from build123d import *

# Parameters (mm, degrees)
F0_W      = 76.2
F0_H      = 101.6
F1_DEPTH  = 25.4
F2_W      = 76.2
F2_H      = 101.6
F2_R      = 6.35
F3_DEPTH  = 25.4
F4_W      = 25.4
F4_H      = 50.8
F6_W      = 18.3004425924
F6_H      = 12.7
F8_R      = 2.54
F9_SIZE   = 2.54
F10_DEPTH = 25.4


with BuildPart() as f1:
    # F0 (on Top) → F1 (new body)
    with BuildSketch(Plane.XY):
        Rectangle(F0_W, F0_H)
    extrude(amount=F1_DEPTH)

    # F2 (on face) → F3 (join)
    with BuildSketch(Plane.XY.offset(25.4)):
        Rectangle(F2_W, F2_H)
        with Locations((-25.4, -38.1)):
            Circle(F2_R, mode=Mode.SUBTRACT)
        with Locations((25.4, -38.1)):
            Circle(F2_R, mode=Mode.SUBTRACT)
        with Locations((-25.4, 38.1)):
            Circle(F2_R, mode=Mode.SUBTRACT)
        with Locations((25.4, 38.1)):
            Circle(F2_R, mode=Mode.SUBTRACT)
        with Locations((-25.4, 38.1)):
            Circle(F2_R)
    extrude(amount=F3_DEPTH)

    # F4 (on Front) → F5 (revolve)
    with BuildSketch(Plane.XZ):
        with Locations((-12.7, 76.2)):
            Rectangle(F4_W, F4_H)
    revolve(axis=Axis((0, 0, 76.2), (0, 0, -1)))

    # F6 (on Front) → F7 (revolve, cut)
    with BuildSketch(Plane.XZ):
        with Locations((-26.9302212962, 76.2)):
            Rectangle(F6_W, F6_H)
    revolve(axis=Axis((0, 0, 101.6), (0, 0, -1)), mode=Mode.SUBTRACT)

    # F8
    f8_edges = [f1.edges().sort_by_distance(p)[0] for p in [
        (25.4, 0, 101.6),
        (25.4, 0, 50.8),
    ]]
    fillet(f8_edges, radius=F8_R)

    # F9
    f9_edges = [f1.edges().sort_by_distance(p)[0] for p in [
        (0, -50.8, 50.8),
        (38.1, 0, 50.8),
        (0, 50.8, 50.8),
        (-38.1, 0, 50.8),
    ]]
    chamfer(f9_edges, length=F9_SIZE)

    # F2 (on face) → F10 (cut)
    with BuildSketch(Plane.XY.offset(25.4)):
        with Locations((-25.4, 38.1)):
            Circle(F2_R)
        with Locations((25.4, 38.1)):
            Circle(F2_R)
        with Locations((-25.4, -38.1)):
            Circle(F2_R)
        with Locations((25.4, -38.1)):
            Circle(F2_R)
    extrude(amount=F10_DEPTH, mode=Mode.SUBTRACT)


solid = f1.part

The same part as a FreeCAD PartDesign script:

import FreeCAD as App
import Part
import Sketcher

V = App.Vector
Q = App.Units.Quantity


def edges_at(feature, points):
    """Names of the edges that pass closest to the given points."""
    edges = feature.Shape.Edges
    near = lambda p: min(range(len(edges)), key=lambda i: edges[i].distToShape(Part.Vertex(*p))[0])
    return sorted({f"Edge{near(p) + 1}" for p in points})

doc = App.newDocument("Part")
body = doc.addObject("PartDesign::Body", "Body")

sketch1 = doc.addObject("Sketcher::SketchObject", "Sketch")
body.addObject(sketch1)
sketch1.AttachmentSupport = (doc.XY_Plane, [""])
sketch1.MapMode = "FlatFace"
sketch1.addGeometry(Part.LineSegment(V(-38, 51, 0), V(-38, -51, 0)), False)
sketch1.addGeometry(Part.LineSegment(V(-38, -51, 0), V(38, -51, 0)), False)
sketch1.addGeometry(Part.LineSegment(V(38, -51, 0), V(38, 51, 0)), False)
sketch1.addGeometry(Part.LineSegment(V(38, 51, 0), V(-38, 51, 0)), False)
sketch1.addConstraint(Sketcher.Constraint("Coincident", 0, 2, 1, 1))
sketch1.addConstraint(Sketcher.Constraint("Coincident", 1, 2, 2, 1))
sketch1.addConstraint(Sketcher.Constraint("Coincident", 2, 2, 3, 1))
sketch1.addConstraint(Sketcher.Constraint("Coincident", 3, 2, 0, 1))
sketch1.addConstraint(Sketcher.Constraint("Vertical", 0))
sketch1.addConstraint(Sketcher.Constraint("Horizontal", 1))
sketch1.addConstraint(Sketcher.Constraint("Vertical", 2))
sketch1.addConstraint(Sketcher.Constraint("Horizontal", 3))
sketch1.addConstraint(Sketcher.Constraint("Symmetric", 0, 2, 2, 2, -1, 1))
sketch1.addConstraint(Sketcher.Constraint("DistanceX", 1, 1, 1, 2, Q("3 in")))
sketch1.addConstraint(Sketcher.Constraint("DistanceY", 0, 2, 0, 1, Q("4 in")))
pad1 = doc.addObject("PartDesign::Pad", "Pad")
body.addObject(pad1)
pad1.Profile = sketch1
pad1.Length = Q("1 in")

sketch2 = doc.addObject("Sketcher::SketchObject", "Sketch001")
body.addObject(sketch2)
sketch2.AttachmentSupport = (doc.XY_Plane, [""])
sketch2.MapMode = "FlatFace"
sketch2.AttachmentOffset = App.Placement(V(0, 0, 1 * 25.4), App.Rotation())
sketch2.addGeometry(Part.LineSegment(V(-38, 51, 0), V(-38, -51, 0)), False)
sketch2.addGeometry(Part.LineSegment(V(-38, -51, 0), V(38, -51, 0)), False)
sketch2.addGeometry(Part.LineSegment(V(38, -51, 0), V(38, 51, 0)), False)
sketch2.addGeometry(Part.LineSegment(V(38, 51, 0), V(-38, 51, 0)), False)
sketch2.addGeometry(Part.Circle(V(-25, -38, 0), V(0, 0, 1), 6), False)
sketch2.addGeometry(Part.Circle(V(25, -38, 0), V(0, 0, 1), 6), False)
sketch2.addGeometry(Part.Circle(V(25, 38, 0), V(0, 0, 1), 6), False)
sketch2.addConstraint(Sketcher.Constraint("Coincident", 0, 2, 1, 1))
sketch2.addConstraint(Sketcher.Constraint("Coincident", 1, 2, 2, 1))
sketch2.addConstraint(Sketcher.Constraint("Coincident", 2, 2, 3, 1))
sketch2.addConstraint(Sketcher.Constraint("Coincident", 3, 2, 0, 1))
sketch2.addConstraint(Sketcher.Constraint("Vertical", 0))
sketch2.addConstraint(Sketcher.Constraint("Horizontal", 1))
sketch2.addConstraint(Sketcher.Constraint("Vertical", 2))
sketch2.addConstraint(Sketcher.Constraint("Horizontal", 3))
sketch2.addConstraint(Sketcher.Constraint("Equal", 4, 5))
sketch2.addConstraint(Sketcher.Constraint("Equal", 5, 6))
sketch2.addConstraint(Sketcher.Constraint("Symmetric", 4, 3, 6, 3, -1, 1))
sketch2.addConstraint(Sketcher.Constraint("Symmetric", 0, 2, 2, 2, -1, 1))
sketch2.addConstraint(Sketcher.Constraint("Symmetric", 4, 3, 5, 3, -2))
sketch2.addConstraint(Sketcher.Constraint("Diameter", 4, Q("0.5 in")))
sketch2.addConstraint(Sketcher.Constraint("DistanceX", 1, 1, 1, 2, Q("3 in")))
sketch2.addConstraint(Sketcher.Constraint("DistanceY", 0, 2, 0, 1, Q("4 in")))
sketch2.addConstraint(Sketcher.Constraint("DistanceX", 4, 3, -1, 1, Q("1 in")))
sketch2.addConstraint(Sketcher.Constraint("DistanceY", 5, 3, 6, 3, Q("3 in")))
pad2 = doc.addObject("PartDesign::Pad", "Pad001")
body.addObject(pad2)
pad2.Profile = sketch2
pad2.Length = Q("1 in")

sketch3 = doc.addObject("Sketcher::SketchObject", "Sketch002")
body.addObject(sketch3)
sketch3.AttachmentSupport = (doc.XZ_Plane, [""])
sketch3.MapMode = "FlatFace"
sketch3.addGeometry(Part.LineSegment(V(-25, 102, 0), V(-25, 51, 0)), False)
sketch3.addGeometry(Part.LineSegment(V(-25, 51, 0), V(0, 51, 0)), False)
sketch3.addGeometry(Part.LineSegment(V(0, 51, 0), V(0, 102, 0)), False)
sketch3.addGeometry(Part.LineSegment(V(0, 102, 0), V(-25, 102, 0)), False)
sketch3.addConstraint(Sketcher.Constraint("Coincident", 0, 2, 1, 1))
sketch3.addConstraint(Sketcher.Constraint("Coincident", 1, 2, 2, 1))
sketch3.addConstraint(Sketcher.Constraint("Coincident", 2, 2, 3, 1))
sketch3.addConstraint(Sketcher.Constraint("Coincident", 3, 2, 0, 1))
sketch3.addConstraint(Sketcher.Constraint("Vertical", 0))
sketch3.addConstraint(Sketcher.Constraint("Horizontal", 1))
sketch3.addConstraint(Sketcher.Constraint("Vertical", 2))
sketch3.addConstraint(Sketcher.Constraint("Horizontal", 3))
sketch3.addConstraint(Sketcher.Constraint("PointOnObject", 1, 2, -2))
sketch3.addConstraint(Sketcher.Constraint("DistanceX", 1, 1, 1, 2, Q("1 in")))
sketch3.addConstraint(Sketcher.Constraint("DistanceY", 0, 2, 0, 1, Q("2 in")))
sketch3.addConstraint(Sketcher.Constraint("DistanceY", -1, 1, 0, 2, Q("2 in")))
revolution = doc.addObject("PartDesign::Revolution", "Revolution")
body.addObject(revolution)
revolution.Profile = sketch3
revolution.ReferenceAxis = (sketch3, ["V_Axis"])
revolution.Angle = 360

sketch4 = doc.addObject("Sketcher::SketchObject", "Sketch003")
body.addObject(sketch4)
sketch4.AttachmentSupport = (doc.XZ_Plane, [""])
sketch4.MapMode = "FlatFace"
sketch4.addGeometry(Part.LineSegment(V(-36, 83, 0), V(-36, 70, 0)), False)
sketch4.addGeometry(Part.LineSegment(V(-36, 70, 0), V(-18, 70, 0)), False)
sketch4.addGeometry(Part.LineSegment(V(-18, 70, 0), V(-18, 83, 0)), False)
sketch4.addGeometry(Part.LineSegment(V(-18, 83, 0), V(-36, 83, 0)), False)
sketch4.addConstraint(Sketcher.Constraint("Coincident", 0, 2, 1, 1))
sketch4.addConstraint(Sketcher.Constraint("Coincident", 1, 2, 2, 1))
sketch4.addConstraint(Sketcher.Constraint("Coincident", 2, 2, 3, 1))
sketch4.addConstraint(Sketcher.Constraint("Coincident", 3, 2, 0, 1))
sketch4.addConstraint(Sketcher.Constraint("Vertical", 0))
sketch4.addConstraint(Sketcher.Constraint("Horizontal", 1))
sketch4.addConstraint(Sketcher.Constraint("Vertical", 2))
sketch4.addConstraint(Sketcher.Constraint("Horizontal", 3))
sketch4.addConstraint(Sketcher.Constraint("DistanceY", 0, 2, 0, 1, Q("0.5 in")))
sketch4.addConstraint(Sketcher.Constraint("DistanceX", 1, 2, -1, 1, Q("0.7 in")))
sketch4.addConstraint(Sketcher.Constraint("DistanceY", -1, 1, 0, 2, Q("2.75 in")))
sketch4.addConstraint(Sketcher.Constraint("DistanceX", 1, 1, 1, 2, 18.300443))
groove = doc.addObject("PartDesign::Groove", "Groove")
body.addObject(groove)
groove.Profile = sketch4
groove.ReferenceAxis = (sketch4, ["V_Axis"])
groove.Angle = 360
doc.recompute()

fillet = doc.addObject("PartDesign::Fillet", "Fillet")
body.addObject(fillet)
fillet.Base = (groove, edges_at(groove, [(25.4, 0, 101.6), (25.4, 0, 50.8)]))
fillet.Radius = Q("0.1 in")
doc.recompute()

chamfer = doc.addObject("PartDesign::Chamfer", "Chamfer")
body.addObject(chamfer)
chamfer.Base = (fillet, edges_at(fillet, [
    (0, -50.8, 50.8),
    (38.1, 0, 50.8),
    (0, 50.8, 50.8),
    (-38.1, 0, 50.8),
]))
chamfer.Size = Q("0.1 in")

sketch5 = doc.addObject("Sketcher::SketchObject", "Sketch004")
body.addObject(sketch5)
sketch5.AttachmentSupport = (doc.XY_Plane, [""])
sketch5.MapMode = "FlatFace"
sketch5.AttachmentOffset = App.Placement(V(0, 0, 1 * 25.4), App.Rotation())
sketch5.addGeometry(Part.Circle(V(-25, 38, 0), V(0, 0, 1), 6), False)
sketch5.addGeometry(Part.Circle(V(25, 38, 0), V(0, 0, 1), 6), False)
sketch5.addGeometry(Part.Circle(V(-25, -38, 0), V(0, 0, 1), 6), False)
sketch5.addGeometry(Part.Circle(V(25, -38, 0), V(0, 0, 1), 6), False)
sketch5.addConstraint(Sketcher.Constraint("Equal", 0, 1))
sketch5.addConstraint(Sketcher.Constraint("Equal", 1, 2))
sketch5.addConstraint(Sketcher.Constraint("Equal", 2, 3))
sketch5.addConstraint(Sketcher.Constraint("Symmetric", 1, 3, 2, 3, -1, 1))
sketch5.addConstraint(Sketcher.Constraint("Symmetric", 0, 3, 3, 3, -1, 1))
sketch5.addConstraint(Sketcher.Constraint("Symmetric", 0, 3, 1, 3, -2))
sketch5.addConstraint(Sketcher.Constraint("Diameter", 0, Q("0.5 in")))
sketch5.addConstraint(Sketcher.Constraint("DistanceX", 0, 3, -1, 1, Q("1 in")))
sketch5.addConstraint(Sketcher.Constraint("DistanceY", 2, 3, 0, 3, Q("3 in")))
pocket1 = doc.addObject("PartDesign::Pocket", "Pocket")
body.addObject(pocket1)
pocket1.Profile = sketch5
pocket1.Length = Q("1 in")
pocket1.Reversed = True

doc.recompute()
